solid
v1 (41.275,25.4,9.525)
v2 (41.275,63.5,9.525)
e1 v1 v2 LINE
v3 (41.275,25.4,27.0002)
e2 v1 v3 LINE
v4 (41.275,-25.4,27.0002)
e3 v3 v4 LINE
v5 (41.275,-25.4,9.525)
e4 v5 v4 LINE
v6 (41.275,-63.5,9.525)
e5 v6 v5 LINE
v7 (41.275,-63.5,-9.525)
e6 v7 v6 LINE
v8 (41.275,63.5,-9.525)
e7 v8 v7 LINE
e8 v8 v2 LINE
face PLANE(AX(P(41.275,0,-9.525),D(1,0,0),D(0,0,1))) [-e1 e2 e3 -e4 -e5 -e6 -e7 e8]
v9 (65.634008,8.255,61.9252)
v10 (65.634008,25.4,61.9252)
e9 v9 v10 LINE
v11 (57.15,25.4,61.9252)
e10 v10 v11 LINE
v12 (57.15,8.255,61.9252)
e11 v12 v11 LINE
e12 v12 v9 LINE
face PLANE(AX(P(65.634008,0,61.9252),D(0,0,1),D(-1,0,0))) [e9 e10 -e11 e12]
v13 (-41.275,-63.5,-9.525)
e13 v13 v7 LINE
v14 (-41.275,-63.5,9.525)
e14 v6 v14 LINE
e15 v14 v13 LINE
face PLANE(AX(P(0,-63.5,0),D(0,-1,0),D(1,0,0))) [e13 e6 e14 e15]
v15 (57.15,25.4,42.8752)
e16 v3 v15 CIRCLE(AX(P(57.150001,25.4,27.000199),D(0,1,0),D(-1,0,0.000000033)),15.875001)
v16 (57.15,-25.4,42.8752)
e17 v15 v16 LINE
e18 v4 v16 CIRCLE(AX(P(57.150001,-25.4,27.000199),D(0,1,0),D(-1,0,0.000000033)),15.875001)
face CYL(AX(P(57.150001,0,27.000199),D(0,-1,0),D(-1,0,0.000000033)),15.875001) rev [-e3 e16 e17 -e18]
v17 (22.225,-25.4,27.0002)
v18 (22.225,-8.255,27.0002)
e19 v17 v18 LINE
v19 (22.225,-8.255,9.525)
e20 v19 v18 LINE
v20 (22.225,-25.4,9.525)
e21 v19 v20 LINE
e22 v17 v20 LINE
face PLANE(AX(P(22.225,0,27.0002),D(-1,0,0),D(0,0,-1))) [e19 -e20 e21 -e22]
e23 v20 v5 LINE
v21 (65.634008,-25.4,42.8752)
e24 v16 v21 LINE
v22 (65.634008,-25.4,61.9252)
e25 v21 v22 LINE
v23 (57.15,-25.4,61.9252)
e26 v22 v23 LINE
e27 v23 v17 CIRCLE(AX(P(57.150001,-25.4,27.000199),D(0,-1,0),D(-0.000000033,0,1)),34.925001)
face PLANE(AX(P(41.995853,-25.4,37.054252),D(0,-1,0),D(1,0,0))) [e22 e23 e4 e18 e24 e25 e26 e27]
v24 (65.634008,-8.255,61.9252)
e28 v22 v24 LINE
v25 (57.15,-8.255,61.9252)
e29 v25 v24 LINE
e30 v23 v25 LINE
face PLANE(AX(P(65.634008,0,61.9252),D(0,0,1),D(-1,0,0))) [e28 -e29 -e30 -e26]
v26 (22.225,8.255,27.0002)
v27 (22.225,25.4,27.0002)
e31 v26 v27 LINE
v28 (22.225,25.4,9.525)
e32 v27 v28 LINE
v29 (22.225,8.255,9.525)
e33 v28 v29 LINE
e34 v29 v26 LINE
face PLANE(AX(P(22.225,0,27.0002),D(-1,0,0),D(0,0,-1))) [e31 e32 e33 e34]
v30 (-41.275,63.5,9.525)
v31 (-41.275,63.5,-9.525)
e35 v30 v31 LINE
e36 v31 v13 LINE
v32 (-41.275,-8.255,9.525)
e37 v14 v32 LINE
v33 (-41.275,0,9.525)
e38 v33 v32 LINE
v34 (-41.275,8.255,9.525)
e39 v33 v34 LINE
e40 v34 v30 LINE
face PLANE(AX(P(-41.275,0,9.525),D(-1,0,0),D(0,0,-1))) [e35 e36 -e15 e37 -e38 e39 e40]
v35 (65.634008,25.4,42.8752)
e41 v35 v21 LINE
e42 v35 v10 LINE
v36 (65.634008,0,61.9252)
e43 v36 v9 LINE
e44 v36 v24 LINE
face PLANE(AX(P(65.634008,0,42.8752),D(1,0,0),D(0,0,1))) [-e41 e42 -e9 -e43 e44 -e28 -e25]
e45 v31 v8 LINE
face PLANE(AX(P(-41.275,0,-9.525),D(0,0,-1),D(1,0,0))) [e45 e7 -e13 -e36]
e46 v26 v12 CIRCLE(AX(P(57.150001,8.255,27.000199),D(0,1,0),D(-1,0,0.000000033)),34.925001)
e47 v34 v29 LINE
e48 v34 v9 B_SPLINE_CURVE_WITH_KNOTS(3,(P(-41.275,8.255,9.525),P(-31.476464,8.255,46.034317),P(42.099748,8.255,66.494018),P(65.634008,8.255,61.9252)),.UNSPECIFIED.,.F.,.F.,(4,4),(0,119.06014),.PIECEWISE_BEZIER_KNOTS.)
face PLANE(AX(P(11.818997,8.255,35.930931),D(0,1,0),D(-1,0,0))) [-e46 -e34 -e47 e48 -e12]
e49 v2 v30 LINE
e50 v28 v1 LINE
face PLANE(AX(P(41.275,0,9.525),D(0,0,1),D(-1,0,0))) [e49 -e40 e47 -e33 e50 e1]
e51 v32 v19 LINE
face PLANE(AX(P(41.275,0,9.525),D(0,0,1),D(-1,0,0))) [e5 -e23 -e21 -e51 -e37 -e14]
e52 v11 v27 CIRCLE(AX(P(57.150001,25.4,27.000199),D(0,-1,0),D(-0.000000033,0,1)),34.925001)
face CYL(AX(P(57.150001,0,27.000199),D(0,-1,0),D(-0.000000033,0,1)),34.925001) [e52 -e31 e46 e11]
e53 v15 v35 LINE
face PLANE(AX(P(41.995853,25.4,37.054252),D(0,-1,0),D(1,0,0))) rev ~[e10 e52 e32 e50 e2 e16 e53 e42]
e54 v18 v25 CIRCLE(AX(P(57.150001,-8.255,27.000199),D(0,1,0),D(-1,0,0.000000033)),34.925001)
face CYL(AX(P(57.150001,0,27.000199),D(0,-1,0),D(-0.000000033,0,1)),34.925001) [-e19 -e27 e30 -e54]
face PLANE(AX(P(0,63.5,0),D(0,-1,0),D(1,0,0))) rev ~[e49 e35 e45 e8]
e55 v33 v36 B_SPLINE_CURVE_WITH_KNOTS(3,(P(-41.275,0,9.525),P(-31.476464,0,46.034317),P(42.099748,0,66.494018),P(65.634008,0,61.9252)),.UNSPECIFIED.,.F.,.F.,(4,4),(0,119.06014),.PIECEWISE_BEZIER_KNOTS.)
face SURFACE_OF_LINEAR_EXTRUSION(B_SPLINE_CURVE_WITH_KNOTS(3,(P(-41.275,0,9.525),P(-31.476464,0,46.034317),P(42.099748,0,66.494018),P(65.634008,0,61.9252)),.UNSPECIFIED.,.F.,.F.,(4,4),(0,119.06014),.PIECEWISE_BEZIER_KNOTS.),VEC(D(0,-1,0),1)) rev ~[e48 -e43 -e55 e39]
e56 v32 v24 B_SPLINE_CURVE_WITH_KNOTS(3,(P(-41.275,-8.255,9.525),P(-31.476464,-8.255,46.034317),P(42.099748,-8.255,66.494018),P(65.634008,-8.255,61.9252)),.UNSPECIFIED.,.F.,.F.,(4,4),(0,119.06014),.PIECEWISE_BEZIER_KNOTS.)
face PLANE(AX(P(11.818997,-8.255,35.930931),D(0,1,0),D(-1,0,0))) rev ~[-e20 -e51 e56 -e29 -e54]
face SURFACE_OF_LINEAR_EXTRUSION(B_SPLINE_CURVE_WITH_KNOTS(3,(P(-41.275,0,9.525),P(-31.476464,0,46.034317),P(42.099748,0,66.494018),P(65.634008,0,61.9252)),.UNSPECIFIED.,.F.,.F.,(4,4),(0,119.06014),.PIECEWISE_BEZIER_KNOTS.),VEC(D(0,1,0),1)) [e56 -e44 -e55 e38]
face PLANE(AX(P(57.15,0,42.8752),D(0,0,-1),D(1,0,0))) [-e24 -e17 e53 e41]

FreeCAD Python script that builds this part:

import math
import FreeCAD as App
import Part
import Sketcher
Q = App.Units.Quantity

doc = App.newDocument("Part")
body = doc.addObject("PartDesign::Body", "Body")

sketch1 = body.newObject("Sketcher::SketchObject", "Sketch")
sketch1.AttachmentSupport = (doc.getObject("XZ_Plane"), [""])
sketch1.MapMode = "FlatFace"
sketch1.addGeometry(Part.LineSegment(App.Vector(-41.275, 9.525, 0), App.Vector(-41.275, -9.525, 0)), False)
sketch1.addGeometry(Part.LineSegment(App.Vector(-41.275, -9.525, 0), App.Vector(41.275, -9.525, 0)), False)
sketch1.addGeometry(Part.LineSegment(App.Vector(41.275, -9.525, 0), App.Vector(41.275, 9.525, 0)), False)
sketch1.addGeometry(Part.LineSegment(App.Vector(41.275, 9.525, 0), App.Vector(-41.275, 9.525, 0)), False)
sketch1.addConstraint(Sketcher.Constraint("Coincident", 0, 2, 1, 1))
sketch1.addConstraint(Sketcher.Constraint("Coincident", 1, 2, 2, 1))
sketch1.addConstraint(Sketcher.Constraint("Coincident", 2, 2, 3, 1))
sketch1.addConstraint(Sketcher.Constraint("Coincident", 3, 2, 0, 1))
sketch1.addConstraint(Sketcher.Constraint("Vertical", 0))
sketch1.addConstraint(Sketcher.Constraint("Horizontal", 1))
sketch1.addConstraint(Sketcher.Constraint("Vertical", 2))
sketch1.addConstraint(Sketcher.Constraint("Horizontal", 3))
sketch1.addConstraint(Sketcher.Constraint("Symmetric", 0, 2, 2, 2, -1, 1))
sketch1.addConstraint(Sketcher.Constraint("DistanceX", 1, 1, 1, 2, Q("3.25 in")))
sketch1.addConstraint(Sketcher.Constraint("DistanceY", 0, 2, 0, 1, Q("0.75 in")))
pad1 = body.newObject("PartDesign::Pad", "Pad")
pad1.Profile = sketch1
pad1.Length = Q("5 in")
pad1.Midplane = True

sketch2 = body.newObject("Sketcher::SketchObject", "Sketch001")
sketch2.AttachmentSupport = (doc.getObject("XZ_Plane"), [""])
sketch2.MapMode = "FlatFace"
sketch2.addGeometry(Part.LineSegment(App.Vector(22.225, 27.0002, 0), App.Vector(22.225, 9.525, 0)), False)
sketch2.addGeometry(Part.LineSegment(App.Vector(22.225, 9.525, 0), App.Vector(41.275, 9.525, 0)), False)
sketch2.addGeometry(Part.LineSegment(App.Vector(41.275, 9.525, 0), App.Vector(41.275, 27.0002, 0)), False)
sketch2.addGeometry(Part.ArcOfCircle(Part.Circle(App.Vector(57.150001, 27.000199, 0), App.Vector(0, 0, 1), 15.875001), math.radians(90.000002), math.radians(179.999998)), False)
sketch2.addGeometry(Part.LineSegment(App.Vector(57.15, 42.8752, 0), App.Vector(65.634008, 42.8752, 0)), False)
sketch2.addGeometry(Part.LineSegment(App.Vector(65.634008, 42.8752, 0), App.Vector(65.634008, 61.9252, 0)), False)
sketch2.addGeometry(Part.LineSegment(App.Vector(65.634008, 61.9252, 0), App.Vector(57.15, 61.9252, 0)), False)
sketch2.addGeometry(Part.ArcOfCircle(Part.Circle(App.Vector(57.150001, 27.000199, 0), App.Vector(0, 0, 1), 34.925001), math.radians(90.000002), math.radians(179.999998)), False)
sketch2.addConstraint(Sketcher.Constraint("Coincident", 0, 2, 1, 1))
sketch2.addConstraint(Sketcher.Constraint("Coincident", 1, 2, 2, 1))
sketch2.addConstraint(Sketcher.Constraint("Tangent", 2, 2, 3, 2))
sketch2.addConstraint(Sketcher.Constraint("Tangent", 3, 1, 4, 1))
sketch2.addConstraint(Sketcher.Constraint("Coincident", 4, 2, 5, 1))
sketch2.addConstraint(Sketcher.Constraint("Coincident", 5, 2, 6, 1))
sketch2.addConstraint(Sketcher.Constraint("Tangent", 6, 2, 7, 1))
sketch2.addConstraint(Sketcher.Constraint("Tangent", 7, 2, 0, 1))
sketch2.addConstraint(Sketcher.Constraint("Vertical", 0))
sketch2.addConstraint(Sketcher.Constraint("Horizontal", 1))
sketch2.addConstraint(Sketcher.Constraint("Vertical", 2))
sketch2.addConstraint(Sketcher.Constraint("Horizontal", 4))
sketch2.addConstraint(Sketcher.Constraint("Vertical", 5))
sketch2.addConstraint(Sketcher.Constraint("Horizontal", 6))
sketch2.addConstraint(Sketcher.Constraint("Coincident", 7, 3, 3, 3))
sketch2.addConstraint(Sketcher.Constraint("Radius", 3, Q("0.625 in")))
sketch2.addConstraint(Sketcher.Constraint("Radius", 7, Q("1.375 in")))
sketch2.addConstraint(Sketcher.Constraint("DistanceY", 0, 2, 0, 1, Q("0.688 in")))
sketch2.addConstraint(Sketcher.Constraint("DistanceX", -1, 1, 3, 3, Q("2.25 in")))
sketch2.addConstraint(Sketcher.Constraint("DistanceY", -1, 1, 3, 3, Q("1.063 in")))
sketch2.addConstraint(Sketcher.Constraint("DistanceX", 4, 1, 4, 2, 8.484008))
pad2 = body.newObject("PartDesign::Pad", "Pad001")
pad2.Profile = sketch2
pad2.Length = Q("2 in")
pad2.Midplane = True

sketch3 = body.newObject("Sketcher::SketchObject", "Sketch002")
sketch3.AttachmentSupport = (doc.getObject("XZ_Plane"), [""])
sketch3.MapMode = "FlatFace"
sketch3.addGeometry(Part.BSplineCurve([App.Vector(-41.275, 9.525, 0), App.Vector(-31.476464, 46.034317, 0), App.Vector(42.099748, 66.494018, 0), App.Vector(65.634008, 61.9252, 0)], [4, 4], [0, 119.06014], False, 3, [1, 1, 1, 1], False), False)
sketch3.addGeometry(Part.LineSegment(App.Vector(-41.275, 9.525, 0), App.Vector(22.225, 9.525, 0)), False)
sketch3.addGeometry(Part.LineSegment(App.Vector(22.225, 9.525, 0), App.Vector(22.225, 27.0002, 0)), False)
sketch3.addGeometry(Part.ArcOfCircle(Part.Circle(App.Vector(57.150001, 27.000199, 0), App.Vector(0, 0, 1), 34.925001), math.radians(90.000002), math.radians(179.999998)), False)
sketch3.addGeometry(Part.LineSegment(App.Vector(57.15, 61.9252, 0), App.Vector(65.634008, 61.9252, 0)), False)
sketch3.addConstraint(Sketcher.Constraint("Block", 0))
sketch3.addConstraint(Sketcher.Constraint("Coincident", 0, 1, 1, 1))
sketch3.addConstraint(Sketcher.Constraint("Coincident", 1, 2, 2, 1))
sketch3.addConstraint(Sketcher.Constraint("Tangent", 2, 2, 3, 2))
sketch3.addConstraint(Sketcher.Constraint("Tangent", 3, 1, 4, 1))
sketch3.addConstraint(Sketcher.Constraint("Coincident", 4, 2, 0, 2))
sketch3.addConstraint(Sketcher.Constraint("Horizontal", 1))
sketch3.addConstraint(Sketcher.Constraint("Vertical", 2))
sketch3.addConstraint(Sketcher.Constraint("Horizontal", 4))
sketch3.addConstraint(Sketcher.Constraint("DistanceX", 1, 1, 1, 2, Q("2.5 in")))
sketch3.addConstraint(Sketcher.Constraint("Radius", 3, Q("1.375 in")))
pad3 = body.newObject("PartDesign::Pad", "Pad002")
pad3.Profile = sketch3
pad3.Length = Q("0.65 in")
pad3.Midplane = True

doc.recompute()
